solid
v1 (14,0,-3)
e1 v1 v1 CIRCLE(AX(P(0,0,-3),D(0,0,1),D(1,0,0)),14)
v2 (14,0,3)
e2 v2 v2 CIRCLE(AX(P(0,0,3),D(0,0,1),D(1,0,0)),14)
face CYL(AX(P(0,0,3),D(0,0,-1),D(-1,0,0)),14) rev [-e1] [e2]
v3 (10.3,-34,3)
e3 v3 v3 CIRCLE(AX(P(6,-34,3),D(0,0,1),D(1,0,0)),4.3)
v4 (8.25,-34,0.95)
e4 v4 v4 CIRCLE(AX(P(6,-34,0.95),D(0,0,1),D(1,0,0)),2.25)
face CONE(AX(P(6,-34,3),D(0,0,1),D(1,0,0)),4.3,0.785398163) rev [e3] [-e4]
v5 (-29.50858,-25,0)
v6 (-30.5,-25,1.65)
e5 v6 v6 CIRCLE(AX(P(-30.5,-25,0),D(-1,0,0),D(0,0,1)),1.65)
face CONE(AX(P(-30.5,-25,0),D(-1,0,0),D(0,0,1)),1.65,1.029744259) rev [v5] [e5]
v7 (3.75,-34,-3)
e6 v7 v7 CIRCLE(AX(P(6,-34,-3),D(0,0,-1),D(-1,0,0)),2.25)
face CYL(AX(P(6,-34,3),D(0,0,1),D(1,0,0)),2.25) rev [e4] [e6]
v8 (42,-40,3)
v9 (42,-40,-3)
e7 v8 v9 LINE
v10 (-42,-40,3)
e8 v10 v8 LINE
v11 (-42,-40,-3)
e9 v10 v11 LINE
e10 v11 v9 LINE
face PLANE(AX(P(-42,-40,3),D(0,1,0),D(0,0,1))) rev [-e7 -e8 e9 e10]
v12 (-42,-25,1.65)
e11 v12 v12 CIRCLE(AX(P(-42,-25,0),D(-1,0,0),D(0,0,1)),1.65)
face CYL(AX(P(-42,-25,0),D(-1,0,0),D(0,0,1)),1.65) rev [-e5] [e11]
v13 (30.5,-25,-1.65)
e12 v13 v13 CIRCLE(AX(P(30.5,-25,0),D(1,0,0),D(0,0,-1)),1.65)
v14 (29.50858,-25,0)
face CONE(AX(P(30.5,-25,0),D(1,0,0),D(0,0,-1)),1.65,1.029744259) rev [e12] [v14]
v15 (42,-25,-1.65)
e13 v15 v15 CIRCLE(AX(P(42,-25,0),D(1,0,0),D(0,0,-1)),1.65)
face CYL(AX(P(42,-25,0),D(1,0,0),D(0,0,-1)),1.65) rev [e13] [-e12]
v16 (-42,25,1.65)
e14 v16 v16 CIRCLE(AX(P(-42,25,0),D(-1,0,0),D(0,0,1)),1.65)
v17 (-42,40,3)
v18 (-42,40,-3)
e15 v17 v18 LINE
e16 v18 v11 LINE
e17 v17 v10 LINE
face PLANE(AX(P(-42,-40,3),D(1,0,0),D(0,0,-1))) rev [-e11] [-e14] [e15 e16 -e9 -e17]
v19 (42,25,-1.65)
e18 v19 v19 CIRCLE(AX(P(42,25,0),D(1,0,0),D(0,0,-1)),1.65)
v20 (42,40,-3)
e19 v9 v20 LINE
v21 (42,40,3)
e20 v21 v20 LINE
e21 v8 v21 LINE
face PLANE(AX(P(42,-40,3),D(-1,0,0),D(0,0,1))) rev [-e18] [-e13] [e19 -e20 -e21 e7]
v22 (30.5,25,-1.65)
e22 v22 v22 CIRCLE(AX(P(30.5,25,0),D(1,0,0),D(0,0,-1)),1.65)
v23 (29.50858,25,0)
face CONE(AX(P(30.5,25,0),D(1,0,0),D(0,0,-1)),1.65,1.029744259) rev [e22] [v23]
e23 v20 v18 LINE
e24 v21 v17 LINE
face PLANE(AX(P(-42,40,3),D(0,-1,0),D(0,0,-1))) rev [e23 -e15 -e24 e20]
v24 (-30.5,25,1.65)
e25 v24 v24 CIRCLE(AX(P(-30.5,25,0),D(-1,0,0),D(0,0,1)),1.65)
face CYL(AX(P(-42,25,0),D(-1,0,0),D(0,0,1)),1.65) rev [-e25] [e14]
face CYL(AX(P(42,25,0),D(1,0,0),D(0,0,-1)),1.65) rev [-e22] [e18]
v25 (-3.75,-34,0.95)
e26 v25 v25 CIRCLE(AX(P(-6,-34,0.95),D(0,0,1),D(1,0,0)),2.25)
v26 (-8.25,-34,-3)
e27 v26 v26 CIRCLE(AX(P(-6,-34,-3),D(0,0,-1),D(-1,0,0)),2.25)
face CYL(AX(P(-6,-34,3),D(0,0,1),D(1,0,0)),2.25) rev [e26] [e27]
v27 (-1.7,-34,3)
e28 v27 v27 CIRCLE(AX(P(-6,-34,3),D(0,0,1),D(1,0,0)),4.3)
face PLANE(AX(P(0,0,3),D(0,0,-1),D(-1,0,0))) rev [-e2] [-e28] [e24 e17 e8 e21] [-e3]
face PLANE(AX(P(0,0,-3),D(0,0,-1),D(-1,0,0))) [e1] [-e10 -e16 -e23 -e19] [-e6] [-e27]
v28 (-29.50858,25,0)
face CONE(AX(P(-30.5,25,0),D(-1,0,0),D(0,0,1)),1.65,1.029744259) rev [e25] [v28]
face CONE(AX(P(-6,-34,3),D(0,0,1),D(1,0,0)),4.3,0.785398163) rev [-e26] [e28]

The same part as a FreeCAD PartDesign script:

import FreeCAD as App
import Part
import Sketcher

V = App.Vector
Q = App.Units.Quantity


def add_polygon(sketch, points):
    """Adds a closed chain of lines whose ends are joined by coincident constraints."""
    first, n = sketch.GeometryCount, len(points)
    for a, b in zip(points, points[1:] + points[:1]):
        sketch.addGeometry(Part.LineSegment(App.Vector(*a, 0), App.Vector(*b, 0)), False)
    for i in range(n):
        sketch.addConstraint(Sketcher.Constraint("Coincident", first + i, 2, first + (i + 1) % n, 1))

doc = App.newDocument("Part")
body = doc.addObject("PartDesign::Body", "Body")

sketch1 = body.newObject("Sketcher::SketchObject", "Sketch")
sketch1.AttachmentSupport = (doc.getObject("XY_Plane"), [""])
sketch1.MapMode = "FlatFace"
add_polygon(sketch1, [(-42, 40), (-42, -40), (42, -40), (42, 40)])
sketch1.addGeometry(Part.Circle(V(0, 0, 0), V(0, 0, 1), 14), False)
sketch1.addConstraint([
    Sketcher.Constraint("Vertical", 0),
    Sketcher.Constraint("Horizontal", 1),
    Sketcher.Constraint("Vertical", 2),
    Sketcher.Constraint("Horizontal", 3),
    Sketcher.Constraint("Coincident", 4, 3, -1, 1),
    Sketcher.Constraint("Symmetric", 0, 2, 2, 2, -1, 1),
    Sketcher.Constraint("Diameter", 4, 28.0),
    Sketcher.Constraint("DistanceX", 1, 1, 1, 2, 84.0),
    Sketcher.Constraint("DistanceY", 0, 2, 0, 1, 80.0),
])
pad1 = body.newObject("PartDesign::Pad", "Pad")
pad1.Profile = sketch1
pad1.Length = 6
pad1.Midplane = True

sketch2 = body.newObject("Sketcher::SketchObject", "Sketch001")
sketch2.AttachmentSupport = (doc.getObject("XZ_Plane"), [""])
sketch2.MapMode = "FlatFace"
sketch2.AttachmentOffset = App.Placement(V(0, 0, -25), App.Rotation())
add_polygon(sketch2, [(-29.50858, 0), (-42, 0), (-42, 1.65), (-30.5, 1.65)])
sketch2.addConstraint([
    Sketcher.Constraint("Horizontal", 0),
    Sketcher.Constraint("Vertical", 1),
    Sketcher.Constraint("Horizontal", 2),
    Sketcher.Constraint("PointOnObject", 0, 2, -1),
    Sketcher.Constraint("Angle", 3, Q("-59 deg")),
    Sketcher.Constraint("DistanceX", 2, 1, 2, 2, 11.5),
    Sketcher.Constraint("DistanceX", 0, 2, -1, 1, 42.0),
    Sketcher.Constraint("DistanceY", 1, 1, 1, 2, 1.65),
])
groove = body.newObject("PartDesign::Groove", "Groove")
groove.Profile = sketch2
groove.ReferenceAxis = (sketch2, ["H_Axis"])
groove.Angle = 360
doc.recompute()

linearpattern = body.newObject("PartDesign::LinearPattern", "LinearPattern")
linearpattern.Originals = [groove]
linearpattern.Direction = (doc.getObject("Y_Axis"), [""])
linearpattern.Mode = "offset"
linearpattern.Offset = 50
linearpattern.Occurrences = 2
linearpattern.Reversed = True
body.Tip = linearpattern
doc.recompute()

mirrored = body.newObject("PartDesign::Mirrored", "Mirrored")
mirrored.Originals = [groove]
mirrored.MirrorPlane = (doc.getObject("YZ_Plane"), [""])
body.Tip = mirrored

sketch3 = body.newObject("Sketcher::SketchObject", "Sketch002")
sketch3.AttachmentSupport = (doc.getObject("XZ_Plane"), [""])
sketch3.MapMode = "FlatFace"
sketch3.AttachmentOffset = App.Placement(V(0, 0, 25), App.Rotation())
add_polygon(sketch3, [(42, 0), (29.50858, 0), (30.5, 1.65), (42, 1.65)])
sketch3.addConstraint([
    Sketcher.Constraint("Horizontal", 0),
    Sketcher.Constraint("Horizontal", 2),
    Sketcher.Constraint("Vertical", 3),
    Sketcher.Constraint("PointOnObject", 0, 2, -1),
    Sketcher.Constraint("Angle", 1, Q("59 deg")),
    Sketcher.Constraint("DistanceX", 2, 1, 2, 2, 11.5),
    Sketcher.Constraint("DistanceX", -1, 1, 2, 2, 42.0),
    Sketcher.Constraint("DistanceY", 3, 2, 3, 1, 1.65),
])
groove2 = body.newObject("PartDesign::Groove", "Groove001")
groove2.Profile = sketch3
groove2.ReferenceAxis = (sketch3, ["H_Axis"])
groove2.Angle = 360

sketch4 = body.newObject("Sketcher::SketchObject", "Sketch003")
sketch4.AttachmentSupport = (doc.getObject("XY_Plane"), [""])
sketch4.MapMode = "FlatFace"
sketch4.AttachmentOffset = App.Placement(V(0, 0, 3), App.Rotation())
sketch4.addGeometry([
    Part.Circle(V(-6, -34, 0), V(0, 0, 1), 2.25),
    Part.Circle(V(6, -34, 0), V(0, 0, 1), 2.25),
], False)
sketch4.addConstraint([
    Sketcher.Constraint("Equal", 0, 1),
    Sketcher.Constraint("Symmetric", 0, 3, 1, 3, -2),
    Sketcher.Constraint("Diameter", 0, 4.5),
    Sketcher.Constraint("DistanceX", 0, 3, -1, 1, 6.0),
    Sketcher.Constraint("DistanceY", 0, 3, -1, 1, 34.0),
])
doc.recompute()
hole = body.newObject("PartDesign::Hole", "Hole")
hole.Profile = sketch4
hole.ThreadType = "None"
hole.Diameter = 4.5
hole.DepthType = "Dimension"
hole.Depth = 10
hole.DrillPoint = "Angled"
hole.DrillPointAngle = 118
hole.HoleCutType = "Countersink"
hole.HoleCutDiameter = 8.6
hole.HoleCutCountersinkAngle = 90

doc.recompute()
